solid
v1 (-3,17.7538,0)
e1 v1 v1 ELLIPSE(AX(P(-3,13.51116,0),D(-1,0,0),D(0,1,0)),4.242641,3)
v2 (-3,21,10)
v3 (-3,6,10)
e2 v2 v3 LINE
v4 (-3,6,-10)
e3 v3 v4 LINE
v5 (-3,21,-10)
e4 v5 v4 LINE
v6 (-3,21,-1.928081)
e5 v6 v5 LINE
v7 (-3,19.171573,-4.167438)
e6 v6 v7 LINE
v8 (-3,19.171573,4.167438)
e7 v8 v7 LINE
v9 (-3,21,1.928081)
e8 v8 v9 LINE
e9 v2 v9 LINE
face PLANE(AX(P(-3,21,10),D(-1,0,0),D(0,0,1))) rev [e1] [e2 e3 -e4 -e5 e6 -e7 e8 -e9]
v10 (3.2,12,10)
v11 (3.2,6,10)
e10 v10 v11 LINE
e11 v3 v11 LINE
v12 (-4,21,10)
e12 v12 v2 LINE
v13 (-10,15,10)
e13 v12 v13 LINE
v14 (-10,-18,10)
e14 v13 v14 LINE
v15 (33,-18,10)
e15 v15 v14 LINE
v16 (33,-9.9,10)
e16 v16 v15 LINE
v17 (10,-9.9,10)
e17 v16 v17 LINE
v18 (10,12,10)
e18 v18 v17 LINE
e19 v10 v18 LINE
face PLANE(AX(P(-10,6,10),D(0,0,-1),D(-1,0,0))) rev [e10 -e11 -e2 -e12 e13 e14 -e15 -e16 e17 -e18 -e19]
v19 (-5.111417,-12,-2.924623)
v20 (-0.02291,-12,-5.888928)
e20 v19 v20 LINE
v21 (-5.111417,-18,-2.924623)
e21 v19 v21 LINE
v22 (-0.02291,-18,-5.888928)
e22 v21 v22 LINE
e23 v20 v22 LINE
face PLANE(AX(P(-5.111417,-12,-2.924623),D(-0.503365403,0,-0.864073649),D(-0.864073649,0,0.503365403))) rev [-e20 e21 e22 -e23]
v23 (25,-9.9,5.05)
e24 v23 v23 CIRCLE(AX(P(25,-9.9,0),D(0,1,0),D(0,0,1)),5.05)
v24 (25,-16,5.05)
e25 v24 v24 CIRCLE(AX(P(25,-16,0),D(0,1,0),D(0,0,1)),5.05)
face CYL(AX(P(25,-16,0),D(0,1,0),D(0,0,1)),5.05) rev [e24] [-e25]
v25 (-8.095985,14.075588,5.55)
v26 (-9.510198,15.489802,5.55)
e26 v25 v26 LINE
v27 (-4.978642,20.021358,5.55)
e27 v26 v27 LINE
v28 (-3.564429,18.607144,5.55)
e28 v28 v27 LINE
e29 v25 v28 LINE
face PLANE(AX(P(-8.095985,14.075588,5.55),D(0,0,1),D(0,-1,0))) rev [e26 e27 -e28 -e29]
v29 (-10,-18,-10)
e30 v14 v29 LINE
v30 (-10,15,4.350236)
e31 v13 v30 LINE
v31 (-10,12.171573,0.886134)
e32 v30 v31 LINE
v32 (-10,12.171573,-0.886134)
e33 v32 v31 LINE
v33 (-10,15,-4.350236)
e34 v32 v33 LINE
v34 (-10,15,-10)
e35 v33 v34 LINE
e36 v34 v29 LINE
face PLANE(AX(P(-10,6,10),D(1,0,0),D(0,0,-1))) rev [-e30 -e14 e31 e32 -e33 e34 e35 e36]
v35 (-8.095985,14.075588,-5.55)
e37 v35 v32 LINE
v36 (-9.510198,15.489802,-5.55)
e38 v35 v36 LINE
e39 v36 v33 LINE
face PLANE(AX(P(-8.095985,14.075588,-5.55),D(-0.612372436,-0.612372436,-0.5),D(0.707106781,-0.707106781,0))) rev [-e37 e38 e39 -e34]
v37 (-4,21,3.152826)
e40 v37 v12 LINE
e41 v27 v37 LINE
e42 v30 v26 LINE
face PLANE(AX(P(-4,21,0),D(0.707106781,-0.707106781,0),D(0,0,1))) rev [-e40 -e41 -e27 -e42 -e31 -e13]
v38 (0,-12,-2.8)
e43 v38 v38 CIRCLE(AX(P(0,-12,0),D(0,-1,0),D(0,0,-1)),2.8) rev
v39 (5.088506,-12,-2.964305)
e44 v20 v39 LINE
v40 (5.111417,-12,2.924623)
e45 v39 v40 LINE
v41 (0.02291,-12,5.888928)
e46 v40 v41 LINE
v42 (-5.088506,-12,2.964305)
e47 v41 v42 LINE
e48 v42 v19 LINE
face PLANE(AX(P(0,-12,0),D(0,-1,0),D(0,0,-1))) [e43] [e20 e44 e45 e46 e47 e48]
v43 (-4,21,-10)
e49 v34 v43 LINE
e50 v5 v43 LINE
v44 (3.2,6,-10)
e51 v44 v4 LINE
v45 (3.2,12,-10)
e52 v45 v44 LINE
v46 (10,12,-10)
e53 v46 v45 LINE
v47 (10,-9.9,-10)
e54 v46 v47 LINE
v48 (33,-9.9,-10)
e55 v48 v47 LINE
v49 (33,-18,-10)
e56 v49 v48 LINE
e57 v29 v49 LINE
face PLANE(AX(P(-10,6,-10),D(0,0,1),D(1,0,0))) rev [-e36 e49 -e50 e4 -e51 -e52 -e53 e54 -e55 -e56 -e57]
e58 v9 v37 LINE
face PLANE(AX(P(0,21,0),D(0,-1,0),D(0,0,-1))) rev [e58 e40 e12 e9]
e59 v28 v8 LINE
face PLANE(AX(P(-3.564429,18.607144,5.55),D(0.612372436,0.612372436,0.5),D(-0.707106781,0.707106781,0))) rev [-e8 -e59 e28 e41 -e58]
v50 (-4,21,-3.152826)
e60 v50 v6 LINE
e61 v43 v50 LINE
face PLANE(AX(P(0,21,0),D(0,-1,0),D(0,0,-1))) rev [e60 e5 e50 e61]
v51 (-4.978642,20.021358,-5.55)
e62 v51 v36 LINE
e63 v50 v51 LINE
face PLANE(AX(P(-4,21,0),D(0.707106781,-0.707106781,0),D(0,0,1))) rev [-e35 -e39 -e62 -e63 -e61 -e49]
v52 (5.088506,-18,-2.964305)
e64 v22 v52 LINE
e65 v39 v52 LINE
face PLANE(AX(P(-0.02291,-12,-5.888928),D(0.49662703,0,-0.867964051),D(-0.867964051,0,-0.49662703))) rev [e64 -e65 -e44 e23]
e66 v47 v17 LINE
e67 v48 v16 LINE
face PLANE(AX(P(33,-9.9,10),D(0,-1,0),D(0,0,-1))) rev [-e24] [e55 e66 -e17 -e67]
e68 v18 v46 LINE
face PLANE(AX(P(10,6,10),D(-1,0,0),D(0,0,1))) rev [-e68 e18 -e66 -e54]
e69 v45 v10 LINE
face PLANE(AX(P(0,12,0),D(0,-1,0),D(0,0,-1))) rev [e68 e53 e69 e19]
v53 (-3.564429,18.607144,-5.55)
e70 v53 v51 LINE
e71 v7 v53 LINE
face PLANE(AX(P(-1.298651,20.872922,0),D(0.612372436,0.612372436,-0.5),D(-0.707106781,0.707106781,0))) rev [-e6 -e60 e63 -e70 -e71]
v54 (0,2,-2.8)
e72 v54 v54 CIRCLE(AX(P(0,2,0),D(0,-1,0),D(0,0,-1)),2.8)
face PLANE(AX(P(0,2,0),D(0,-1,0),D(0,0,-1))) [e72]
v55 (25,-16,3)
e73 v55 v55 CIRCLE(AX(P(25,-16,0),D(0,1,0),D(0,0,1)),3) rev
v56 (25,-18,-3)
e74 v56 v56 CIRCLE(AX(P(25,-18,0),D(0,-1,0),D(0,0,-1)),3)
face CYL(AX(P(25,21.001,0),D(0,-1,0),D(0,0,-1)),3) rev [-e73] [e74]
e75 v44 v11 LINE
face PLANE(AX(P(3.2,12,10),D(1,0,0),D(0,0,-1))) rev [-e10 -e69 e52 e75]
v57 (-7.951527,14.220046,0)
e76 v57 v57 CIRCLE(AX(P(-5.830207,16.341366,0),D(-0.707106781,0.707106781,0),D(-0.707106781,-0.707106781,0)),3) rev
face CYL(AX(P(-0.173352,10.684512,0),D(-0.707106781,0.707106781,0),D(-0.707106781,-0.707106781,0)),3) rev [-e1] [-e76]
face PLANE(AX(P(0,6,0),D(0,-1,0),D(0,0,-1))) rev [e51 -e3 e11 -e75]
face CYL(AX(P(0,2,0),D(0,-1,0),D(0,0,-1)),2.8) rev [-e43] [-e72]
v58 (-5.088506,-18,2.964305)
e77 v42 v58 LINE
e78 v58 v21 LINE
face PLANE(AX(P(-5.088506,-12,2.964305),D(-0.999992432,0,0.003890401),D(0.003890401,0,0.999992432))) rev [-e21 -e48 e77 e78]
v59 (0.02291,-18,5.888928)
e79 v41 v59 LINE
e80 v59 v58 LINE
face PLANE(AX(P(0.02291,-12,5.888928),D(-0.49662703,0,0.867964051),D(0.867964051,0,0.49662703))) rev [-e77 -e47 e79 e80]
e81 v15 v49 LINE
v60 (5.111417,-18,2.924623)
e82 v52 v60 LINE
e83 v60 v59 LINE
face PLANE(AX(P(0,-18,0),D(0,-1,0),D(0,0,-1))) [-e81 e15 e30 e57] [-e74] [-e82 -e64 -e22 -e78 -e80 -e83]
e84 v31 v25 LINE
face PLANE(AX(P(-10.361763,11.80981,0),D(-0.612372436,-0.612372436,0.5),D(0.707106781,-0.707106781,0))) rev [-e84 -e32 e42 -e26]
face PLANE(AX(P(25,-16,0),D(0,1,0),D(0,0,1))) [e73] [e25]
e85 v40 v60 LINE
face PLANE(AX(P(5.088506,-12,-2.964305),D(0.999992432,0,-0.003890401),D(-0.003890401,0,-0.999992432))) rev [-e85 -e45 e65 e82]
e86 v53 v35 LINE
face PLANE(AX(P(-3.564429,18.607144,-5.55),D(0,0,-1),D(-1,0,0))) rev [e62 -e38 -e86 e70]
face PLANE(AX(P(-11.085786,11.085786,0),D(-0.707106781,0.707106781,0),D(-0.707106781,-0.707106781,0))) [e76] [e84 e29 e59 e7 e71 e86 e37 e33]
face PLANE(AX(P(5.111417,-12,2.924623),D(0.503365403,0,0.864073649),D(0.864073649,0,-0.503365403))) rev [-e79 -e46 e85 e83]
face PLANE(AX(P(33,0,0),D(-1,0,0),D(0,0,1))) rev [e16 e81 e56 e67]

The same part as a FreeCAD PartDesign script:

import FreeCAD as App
import Part
import Sketcher

V = App.Vector
Q = App.Units.Quantity


def edges_at(feature, points):
    """Names of the edges that pass closest to the given points."""
    edges = feature.Shape.Edges
    near = lambda p: min(range(len(edges)), key=lambda i: edges[i].distToShape(Part.Vertex(*p))[0])
    return sorted({f"Edge{near(p) + 1}" for p in points})

doc = App.newDocument("Part")
body = doc.addObject("PartDesign::Body", "Body")

# Sketch on XZ plane
sketch1 = body.newObject("Sketcher::SketchObject", "Sketch")
sketch1.AttachmentSupport = (doc.getObject("XZ_Plane"), [""])
sketch1.MapMode = "FlatFace"
sketch1.addGeometry([
    Part.LineSegment(V(-10, -10, 0), V(-10, 10, 0)),
    Part.LineSegment(V(-10, 10, 0), V(10, 10, 0)),
    Part.LineSegment(V(10, 10, 0), V(10, -10, 0)),
    Part.LineSegment(V(10, -10, 0), V(-10, -10, 0)),
], False)
sketch1.addConstraint([
    Sketcher.Constraint("Coincident", 0, 2, 1, 1),
    Sketcher.Constraint("Coincident", 1, 2, 2, 1),
    Sketcher.Constraint("Coincident", 2, 2, 3, 1),
    Sketcher.Constraint("Coincident", 3, 2, 0, 1),
    Sketcher.Constraint("Vertical", 0),
    Sketcher.Constraint("Horizontal", 1),
    Sketcher.Constraint("Vertical", 2),
    Sketcher.Constraint("Horizontal", 3),
    Sketcher.Constraint("Symmetric", 0, 2, 2, 2, -1, 1),
    Sketcher.Constraint("Equal", 3, 0),
    Sketcher.Constraint("DistanceX", 1, 1, 1, 2, 20.0),
])
pad1 = body.newObject("PartDesign::Pad", "Pad")
pad1.Profile = sketch1
pad1.Length = 6
pad1.Reversed = True

# Sketch on XZ plane
sketch2 = body.newObject("Sketcher::SketchObject", "Sketch001")
sketch2.AttachmentSupport = (doc.getObject("XZ_Plane"), [""])
sketch2.MapMode = "FlatFace"
sketch2.AttachmentOffset = App.Placement(V(0, 0, -6), App.Rotation())
sketch2.addGeometry([
    Part.LineSegment(V(3, -10, 0), V(3, 10, 0)),
    Part.LineSegment(V(3, 10, 0), V(10, 10, 0)),
    Part.LineSegment(V(10, 10, 0), V(10, -10, 0)),
    Part.LineSegment(V(10, -10, 0), V(3, -10, 0)),
], False)
sketch2.addConstraint([
    Sketcher.Constraint("Coincident", 0, 2, 1, 1),
    Sketcher.Constraint("Coincident", 1, 2, 2, 1),
    Sketcher.Constraint("Coincident", 2, 2, 3, 1),
    Sketcher.Constraint("Coincident", 3, 2, 0, 1),
    Sketcher.Constraint("Vertical", 0),
    Sketcher.Constraint("Horizontal", 1),
    Sketcher.Constraint("Vertical", 2),
    Sketcher.Constraint("Horizontal", 3),
    Sketcher.Constraint("DistanceY", 0, 1, 0, 2, 20.0),
    Sketcher.Constraint("DistanceX", 1, 1, 1, 2, 6.8),
    Sketcher.Constraint("DistanceY", -1, 1, 0, 2, 10.0),
    Sketcher.Constraint("DistanceX", -1, 1, 1, 2, 10.0),
])
pad2 = body.newObject("PartDesign::Pad", "Pad001")
pad2.Profile = sketch2
pad2.Length = 6
pad2.Reversed = True

# Sketch on XZ plane
sketch3 = body.newObject("Sketcher::SketchObject", "Sketch002")
sketch3.AttachmentSupport = (doc.getObject("XZ_Plane"), [""])
sketch3.MapMode = "FlatFace"
sketch3.AttachmentOffset = App.Placement(V(0, 0, -6), App.Rotation())
sketch3.addGeometry([
    Part.LineSegment(V(-10, -10, 0), V(-10, 10, 0)),
    Part.LineSegment(V(-10, 10, 0), V(-3, 10, 0)),
    Part.LineSegment(V(-3, 10, 0), V(-3, -10, 0)),
    Part.LineSegment(V(-3, -10, 0), V(-10, -10, 0)),
], False)
sketch3.addConstraint([
    Sketcher.Constraint("Coincident", 0, 2, 1, 1),
    Sketcher.Constraint("Coincident", 1, 2, 2, 1),
    Sketcher.Constraint("Coincident", 2, 2, 3, 1),
    Sketcher.Constraint("Coincident", 3, 2, 0, 1),
    Sketcher.Constraint("Vertical", 0),
    Sketcher.Constraint("Horizontal", 1),
    Sketcher.Constraint("Vertical", 2),
    Sketcher.Constraint("Horizontal", 3),
    Sketcher.Constraint("DistanceX", 1, 1, 1, 2, 7.0),
    Sketcher.Constraint("DistanceY", 0, 1, 0, 2, 20.0),
    Sketcher.Constraint("DistanceX", 0, 2, -1, 1, 10.0),
    Sketcher.Constraint("DistanceY", -1, 1, 0, 2, 10.0),
])
pad3 = body.newObject("PartDesign::Pad", "Pad002")
pad3.Profile = sketch3
pad3.Length = 15
pad3.Reversed = True
doc.recompute()

chamfer = body.newObject("PartDesign::Chamfer", "Chamfer")
chamfer.Base = (pad3, edges_at(pad3, [(-10, 21, 0)]))
chamfer.Size = 6

# Sketch on an angled plane
sketch4 = body.newObject("Sketcher::SketchObject", "Sketch003")
sketch4.Placement = App.Placement(V(-12.5, 12.5, 0), App.Rotation(V(0, 0, 1), V(0.707106781, 0.707106781, 0), V(-0.707106781, 0.707106781, 0), "ZXY"))
sketch4.addGeometry(Part.Circle(V(0, 7.4, 0), V(0, 0, 1), 3), False)
sketch4.addConstraint([
    Sketcher.Constraint("PointOnObject", 0, 3, -2),
    Sketcher.Constraint("Diameter", 0, 6.0),
    Sketcher.Constraint("DistanceY", -1, 1, 0, 3, 7.432512),
])
pocket1 = body.newObject("PartDesign::Pocket", "Pocket")
pocket1.Profile = sketch4
pocket1.Length = 10

# Sketch on XZ plane
sketch5 = body.newObject("Sketcher::SketchObject", "Sketch004")
sketch5.AttachmentSupport = (doc.getObject("XZ_Plane"), [""])
sketch5.MapMode = "FlatFace"
sketch5.addGeometry([
    Part.LineSegment(V(-10, 10, 0), V(-10, -10, 0)),
    Part.LineSegment(V(-10, -10, 0), V(10, -10, 0)),
    Part.LineSegment(V(10, -10, 0), V(10, 10, 0)),
    Part.LineSegment(V(10, 10, 0), V(-10, 10, 0)),
], False)
sketch5.addConstraint([
    Sketcher.Constraint("Coincident", 0, 2, 1, 1),
    Sketcher.Constraint("Coincident", 1, 2, 2, 1),
    Sketcher.Constraint("Coincident", 2, 2, 3, 1),
    Sketcher.Constraint("Coincident", 3, 2, 0, 1),
    Sketcher.Constraint("Vertical", 0),
    Sketcher.Constraint("Horizontal", 1),
    Sketcher.Constraint("Vertical", 2),
    Sketcher.Constraint("Horizontal", 3),
    Sketcher.Constraint("Symmetric", 0, 2, 2, 2, -1, 1),
    Sketcher.Constraint("Equal", 3, 0),
    Sketcher.Constraint("DistanceX", 1, 1, 1, 2, 20.0),
])
pad4 = body.newObject("PartDesign::Pad", "Pad003")
pad4.Profile = sketch5
pad4.Length = 18

# Sketch on an angled plane
sketch6 = body.newObject("Sketcher::SketchObject", "Sketch005")
sketch6.Placement = App.Placement(V(-12.5, 12.5, 0), App.Rotation(V(0, 0, 1), V(0.707106781, 0.707106781, 0), V(-0.707106781, 0.707106781, 0), "ZXY"))
sketch6.addGeometry([
    Part.LineSegment(V(0, 14, 0), V(-6, 11, 0)),  # 0
    Part.LineSegment(V(-6, 11, 0), V(-6, 4, 0)),  # 1
    Part.LineSegment(V(-6, 4, 0), V(0, 1, 0)),  # 2
    Part.LineSegment(V(0, 1, 0), V(6, 4, 0)),  # 3
    Part.LineSegment(V(6, 4, 0), V(6, 11, 0)),  # 4
    Part.LineSegment(V(6, 11, 0), V(0, 14, 0)),  # 5
], False)
sketch6.addConstraint([
    Sketcher.Constraint("Coincident", 0, 2, 1, 1),
    Sketcher.Constraint("Coincident", 1, 2, 2, 1),
    Sketcher.Constraint("Coincident", 2, 2, 3, 1),
    Sketcher.Constraint("Coincident", 3, 2, 4, 1),
    Sketcher.Constraint("Coincident", 4, 2, 5, 1),
    Sketcher.Constraint("Coincident", 5, 2, 0, 1),
    Sketcher.Constraint("Vertical", 1),
    Sketcher.Constraint("Vertical", 4),
    Sketcher.Constraint("Symmetric", 1, 2, 3, 2, -2),
    Sketcher.Constraint("PointOnObject", 2, 2, -2),
    Sketcher.Constraint("PointOnObject", 5, 2, -2),
    Sketcher.Constraint("Parallel", 0, 3),
    Sketcher.Constraint("Parallel", 2, 5),
    Sketcher.Constraint("Angle", 0, Q("-150 deg")),
    Sketcher.Constraint("DistanceX", 1, 2, 3, 2, 11.1),
    Sketcher.Constraint("DistanceY", -1, 1, 5, 2, 13.8411),
    Sketcher.Constraint("DistanceY", 1, 2, 1, 1, 6.408588),
])
pocket2 = body.newObject("PartDesign::Pocket", "Pocket001")
pocket2.Profile = sketch6
pocket2.Length = 2

# Sketch on XZ plane
sketch7 = body.newObject("Sketcher::SketchObject", "Sketch006")
sketch7.AttachmentSupport = (doc.getObject("XZ_Plane"), [""])
sketch7.MapMode = "FlatFace"
sketch7.AttachmentOffset = App.Placement(V(0, 0, 18), App.Rotation())
sketch7.addGeometry(Part.Circle(V(0, 0, 0), V(0, 0, 1), 2.8), False)
sketch7.addConstraint([
    Sketcher.Constraint("Coincident", 0, 3, -1, 1),
    Sketcher.Constraint("Diameter", 0, 5.6),
])
pocket3 = body.newObject("PartDesign::Pocket", "Pocket002")
pocket3.Profile = sketch7
pocket3.Length = 20

# Sketch on XZ plane
sketch8 = body.newObject("Sketcher::SketchObject", "Sketch007")
sketch8.AttachmentSupport = (doc.getObject("XZ_Plane"), [""])
sketch8.MapMode = "FlatFace"
sketch8.AttachmentOffset = App.Placement(V(0, 0, 18), App.Rotation())
sketch8.addGeometry([
    Part.LineSegment(V(-5, 3, 0), V(-5, -3, 0)),  # 0
    Part.LineSegment(V(-5, -3, 0), V(0, -6, 0)),  # 1
    Part.LineSegment(V(0, -6, 0), V(5, -3, 0)),  # 2
    Part.LineSegment(V(5, -3, 0), V(5, 3, 0)),  # 3
    Part.LineSegment(V(5, 3, 0), V(0, 6, 0)),  # 4
    Part.LineSegment(V(0, 6, 0), V(-5, 3, 0)),  # 5
], False)
sketch8.addConstraint([
    Sketcher.Constraint("Coincident", 0, 2, 1, 1),
    Sketcher.Constraint("Coincident", 1, 2, 2, 1),
    Sketcher.Constraint("Coincident", 2, 2, 3, 1),
    Sketcher.Constraint("Coincident", 3, 2, 4, 1),
    Sketcher.Constraint("Coincident", 4, 2, 5, 1),
    Sketcher.Constraint("Coincident", 5, 2, 0, 1),
    Sketcher.Constraint("Symmetric", 0, 2, 3, 2, -1, 1),
    Sketcher.Constraint("Symmetric", 1, 2, 4, 2, -1, 1),
    Sketcher.Constraint("Symmetric", 2, 2, 5, 2, -1, 1),
    Sketcher.Constraint("Equal", 0, 1),
    Sketcher.Constraint("Equal", 1, 2),
    Sketcher.Constraint("DistanceX", 1, 2, -1, 1, 0.02291),
    Sketcher.Constraint("DistanceY", 1, 2, -1, 1, 5.888928),
    Sketcher.Constraint("DistanceX", 2, 2, 3, 2, 0.02291),
    Sketcher.Constraint("DistanceY", 2, 2, 3, 2, 5.888928),
])
pocket4 = body.newObject("PartDesign::Pocket", "Pocket003")
pocket4.Profile = sketch8
pocket4.Length = 6

# Sketch on YZ plane
sketch9 = body.newObject("Sketcher::SketchObject", "Sketch008")
sketch9.AttachmentSupport = (doc.getObject("YZ_Plane"), [""])
sketch9.MapMode = "FlatFace"
sketch9.AttachmentOffset = App.Placement(V(0, 0, 10), App.Rotation())
sketch9.addGeometry([
    Part.LineSegment(V(-10, 10, 0), V(-18, 10, 0)),
    Part.LineSegment(V(-18, 10, 0), V(-18, -10, 0)),
    Part.LineSegment(V(-18, -10, 0), V(-10, -10, 0)),
    Part.LineSegment(V(-10, -10, 0), V(-10, 10, 0)),
], False)
sketch9.addConstraint([
    Sketcher.Constraint("Coincident", 0, 2, 1, 1),
    Sketcher.Constraint("Coincident", 1, 2, 2, 1),
    Sketcher.Constraint("Coincident", 2, 2, 3, 1),
    Sketcher.Constraint("Coincident", 3, 2, 0, 1),
    Sketcher.Constraint("Horizontal", 0),
    Sketcher.Constraint("Vertical", 1),
    Sketcher.Constraint("Horizontal", 2),
    Sketcher.Constraint("Vertical", 3),
    Sketcher.Constraint("DistanceY", 1, 2, 1, 1, 20.0),
    Sketcher.Constraint("DistanceX", 0, 2, 0, 1, 8.1),
    Sketcher.Constraint("DistanceX", 0, 2, -1, 1, 18.0),
    Sketcher.Constraint("DistanceY", -1, 1, 0, 2, 10.0),
])
pad5 = body.newObject("PartDesign::Pad", "Pad004")
pad5.Profile = sketch9
pad5.Length = 23

# Sketch on XZ plane
sketch10 = body.newObject("Sketcher::SketchObject", "Sketch009")
sketch10.AttachmentSupport = (doc.getObject("XZ_Plane"), [""])
sketch10.MapMode = "FlatFace"
sketch10.AttachmentOffset = App.Placement(V(0, 0, 18), App.Rotation())
sketch10.addGeometry(Part.Circle(V(25, 0, 0), V(0, 0, 1), 3), False)
sketch10.addConstraint([
    Sketcher.Constraint("PointOnObject", 0, 3, -1),
    Sketcher.Constraint("Diameter", 0, 6.0),
    Sketcher.Constraint("DistanceX", -1, 1, 0, 3, 25.0),
])
pocket5 = body.newObject("PartDesign::Pocket", "Pocket004")
pocket5.Profile = sketch10
pocket5.Type = "UpToFirst"

# Sketch on XZ plane
sketch11 = body.newObject("Sketcher::SketchObject", "Sketch010")
sketch11.AttachmentSupport = (doc.getObject("XZ_Plane"), [""])
sketch11.MapMode = "FlatFace"
sketch11.AttachmentOffset = App.Placement(V(0, 0, 9.9), App.Rotation())
sketch11.addGeometry(Part.Circle(V(25, 0, 0), V(0, 0, 1), 5), False)
sketch11.addConstraint([
    Sketcher.Constraint("PointOnObject", 0, 3, -1),
    Sketcher.Constraint("Diameter", 0, 10.1),
    Sketcher.Constraint("DistanceX", -1, 1, 0, 3, 25.0),
])
pocket6 = body.newObject("PartDesign::Pocket", "Pocket005")
pocket6.Profile = sketch11
pocket6.Length = 6.1
pocket6.Reversed = True

doc.recompute()
